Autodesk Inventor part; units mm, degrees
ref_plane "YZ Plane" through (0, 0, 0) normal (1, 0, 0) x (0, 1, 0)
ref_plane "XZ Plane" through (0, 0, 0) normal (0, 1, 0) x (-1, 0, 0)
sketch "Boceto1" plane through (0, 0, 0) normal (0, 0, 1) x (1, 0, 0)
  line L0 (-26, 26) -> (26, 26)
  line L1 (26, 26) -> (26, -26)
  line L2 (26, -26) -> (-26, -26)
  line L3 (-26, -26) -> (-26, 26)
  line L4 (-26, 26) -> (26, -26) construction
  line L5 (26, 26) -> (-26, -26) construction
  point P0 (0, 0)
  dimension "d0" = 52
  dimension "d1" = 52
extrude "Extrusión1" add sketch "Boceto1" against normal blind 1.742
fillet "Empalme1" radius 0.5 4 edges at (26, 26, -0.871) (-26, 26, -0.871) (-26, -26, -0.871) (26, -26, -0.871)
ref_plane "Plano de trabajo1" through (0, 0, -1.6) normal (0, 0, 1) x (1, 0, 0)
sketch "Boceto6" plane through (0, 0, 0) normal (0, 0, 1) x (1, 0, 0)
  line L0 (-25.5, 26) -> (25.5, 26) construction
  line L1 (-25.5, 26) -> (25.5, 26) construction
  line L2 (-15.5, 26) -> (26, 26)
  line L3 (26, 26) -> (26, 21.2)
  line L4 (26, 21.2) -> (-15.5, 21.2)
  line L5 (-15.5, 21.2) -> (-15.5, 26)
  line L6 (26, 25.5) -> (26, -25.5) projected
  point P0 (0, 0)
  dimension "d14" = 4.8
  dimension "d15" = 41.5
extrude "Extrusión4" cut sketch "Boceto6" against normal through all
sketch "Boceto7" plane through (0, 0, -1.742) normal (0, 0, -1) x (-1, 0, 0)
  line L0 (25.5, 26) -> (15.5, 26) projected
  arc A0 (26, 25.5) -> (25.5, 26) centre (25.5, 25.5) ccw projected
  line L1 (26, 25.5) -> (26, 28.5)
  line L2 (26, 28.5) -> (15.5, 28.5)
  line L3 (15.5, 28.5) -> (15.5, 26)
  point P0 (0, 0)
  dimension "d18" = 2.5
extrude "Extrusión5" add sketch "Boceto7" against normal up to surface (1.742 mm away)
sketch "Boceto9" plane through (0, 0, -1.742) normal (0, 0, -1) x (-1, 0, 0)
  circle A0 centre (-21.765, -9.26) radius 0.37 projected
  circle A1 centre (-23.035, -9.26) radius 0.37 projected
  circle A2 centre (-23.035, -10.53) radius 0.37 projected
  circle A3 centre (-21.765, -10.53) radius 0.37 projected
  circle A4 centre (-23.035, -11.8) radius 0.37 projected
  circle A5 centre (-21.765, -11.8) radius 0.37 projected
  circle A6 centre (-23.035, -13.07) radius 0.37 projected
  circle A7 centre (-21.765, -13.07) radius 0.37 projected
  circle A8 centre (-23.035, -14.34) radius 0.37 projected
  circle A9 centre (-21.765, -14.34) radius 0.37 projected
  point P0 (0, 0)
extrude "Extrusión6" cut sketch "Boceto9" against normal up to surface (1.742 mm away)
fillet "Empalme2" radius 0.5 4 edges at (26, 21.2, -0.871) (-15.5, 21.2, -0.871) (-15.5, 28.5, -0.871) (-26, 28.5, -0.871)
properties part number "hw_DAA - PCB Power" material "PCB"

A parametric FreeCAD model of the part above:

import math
import FreeCAD as App
import Part
import Sketcher

V = App.Vector


def edges_at(feature, points):
    """Names of the edges that pass closest to the given points."""
    edges = feature.Shape.Edges
    near = lambda p: min(range(len(edges)), key=lambda i: edges[i].distToShape(Part.Vertex(*p))[0])
    return sorted({f"Edge{near(p) + 1}" for p in points})


def add_polygon(sketch, points):
    """Adds a closed chain of lines whose ends are joined by coincident constraints."""
    first, n = sketch.GeometryCount, len(points)
    for a, b in zip(points, points[1:] + points[:1]):
        sketch.addGeometry(Part.LineSegment(App.Vector(*a, 0), App.Vector(*b, 0)), False)
    for i in range(n):
        sketch.addConstraint(Sketcher.Constraint("Coincident", first + i, 2, first + (i + 1) % n, 1))

doc = App.newDocument("Part")
params = doc.addObject("Spreadsheet::Sheet", "Params")
for row, (alias, value) in enumerate([
    ("sketch1_width", "52 mm"),
    ("pad1_length", "1.742 mm"),
    ("fillet_radius", "0.5 mm"),
    ("sketch2_width", "41.5 mm"),
    ("sketch2_height", "4.8 mm"),
    ("sketch3_height", "2.5 mm"),
    ("sketch3_radius", "0.5 mm"),
    ("sketch3_width", "10 mm"),
    ("pad2_length", "1.742 mm"),
    ("sketch4_diameter", "0.74 mm"),
    ("pocket2_length", "1.742 mm"),
    ("fillet2_radius", "0.5 mm"),
], start=1):
    params.set(f"A{row}", alias)
    params.set(f"B{row}", "=" + value)
    params.setAlias(f"B{row}", alias)

body = doc.addObject("PartDesign::Body", "Body")

# Sketch on XY plane
sketch1 = body.newObject("Sketcher::SketchObject", "Sketch")
sketch1.AttachmentSupport = (doc.getObject("XY_Plane"), [""])
sketch1.MapMode = "FlatFace"
add_polygon(sketch1, [(26, 26), (-26, 26), (-26, -26), (26, -26)])  # lines 0-3
sketch1.addConstraint([
    Sketcher.Constraint("Horizontal", 0),
    Sketcher.Constraint("Vertical", 1),
    Sketcher.Constraint("Horizontal", 2),
    Sketcher.Constraint("Vertical", 3),
    Sketcher.Constraint("Symmetric", 0, 2, 2, 2, -1, 1),
    Sketcher.Constraint("Equal", 2, 1),
    Sketcher.Constraint("DistanceX", 0, 2, 0, 1, 52.0),
])
sketch1.setExpression("Constraints[10]", "Params.sketch1_width")
pad1 = body.newObject("PartDesign::Pad", "Pad")
pad1.Profile = sketch1
pad1.setExpression("Length", "Params.pad1_length")
pad1.Reversed = True
doc.recompute()

fillet = body.newObject("PartDesign::Fillet", "Fillet")
fillet.Base = (pad1, edges_at(pad1, [
    (26, 26, -0.871),
    (-26, 26, -0.871),
    (-26, -26, -0.871),
    (26, -26, -0.871),
]))
fillet.setExpression("Radius", "Params.fillet_radius")

# Sketch on XY plane
sketch2 = body.newObject("Sketcher::SketchObject", "Sketch001")
sketch2.AttachmentSupport = (doc.getObject("XY_Plane"), [""])
sketch2.MapMode = "FlatFace"
add_polygon(sketch2, [(26, 26), (-15.5, 26), (-15.5, 21.2), (26, 21.2)])  # lines 0-3
sketch2.addConstraint([
    Sketcher.Constraint("Horizontal", 0),
    Sketcher.Constraint("Vertical", 1),
    Sketcher.Constraint("Horizontal", 2),
    Sketcher.Constraint("Vertical", 3),
    Sketcher.Constraint("DistanceX", 0, 2, 0, 1, 41.5),
    Sketcher.Constraint("DistanceY", 1, 2, 1, 1, 4.8),
    Sketcher.Constraint("DistanceY", -1, 1, 0, 2, 26.0),
    Sketcher.Constraint("DistanceX", -1, 1, 2, 2, 26.0),
])
sketch2.setExpression("Constraints[8]", "Params.sketch2_width")
sketch2.setExpression("Constraints[9]", "Params.sketch2_height")
pocket1 = body.newObject("PartDesign::Pocket", "Pocket")
pocket1.Profile = sketch2
pocket1.Type = "ThroughAll"

# Sketch on XY plane
sketch3 = body.newObject("Sketcher::SketchObject", "Sketch002")
sketch3.AttachmentSupport = (doc.getObject("XY_Plane"), [""])
sketch3.MapMode = "FlatFace"
sketch3.AttachmentOffset = App.Placement(V(0, 0, -1.742), App.Rotation())
sketch3.addGeometry([
    Part.LineSegment(V(-15.5, 26, 0), V(-25.5, 26, 0)),  # 0
    Part.ArcOfCircle(Part.Circle(V(-25.5, 25.5, 0), V(0, 0, 1), 0.5), math.radians(90), math.radians(180)),  # 1
    Part.LineSegment(V(-26, 25.5, 0), V(-26, 28.5, 0)),  # 2
    Part.LineSegment(V(-26, 28.5, 0), V(-15.5, 28.5, 0)),  # 3
    Part.LineSegment(V(-15.5, 28.5, 0), V(-15.5, 26, 0)),  # 4
], False)
sketch3.addConstraint([
    Sketcher.Constraint("Tangent", 0, 2, 1, 1),
    Sketcher.Constraint("Tangent", 1, 2, 2, 1),
    Sketcher.Constraint("Coincident", 2, 2, 3, 1),
    Sketcher.Constraint("Coincident", 3, 2, 4, 1),
    Sketcher.Constraint("Coincident", 4, 2, 0, 1),
    Sketcher.Constraint("Horizontal", 0),
    Sketcher.Constraint("Vertical", 2),
    Sketcher.Constraint("Horizontal", 3),
    Sketcher.Constraint("Vertical", 4),
    Sketcher.Constraint("DistanceY", 4, 2, 4, 1, 2.5),
    Sketcher.Constraint("Radius", 1, 0.5),
    Sketcher.Constraint("DistanceX", 0, 2, 0, 1, 10.0),
    Sketcher.Constraint("DistanceY", -1, 1, 0, 2, 26.0),
    Sketcher.Constraint("DistanceX", 1, 2, -1, 1, 26.0),
])
sketch3.setExpression("Constraints[9]", "Params.sketch3_height")
sketch3.setExpression("Constraints[10]", "Params.sketch3_radius")
sketch3.setExpression("Constraints[11]", "Params.sketch3_width")
pad2 = body.newObject("PartDesign::Pad", "Pad001")
pad2.Profile = sketch3
pad2.setExpression("Length", "Params.pad2_length")

# Sketch on XY plane
sketch4 = body.newObject("Sketcher::SketchObject", "Sketch003")
sketch4.AttachmentSupport = (doc.getObject("XY_Plane"), [""])
sketch4.MapMode = "FlatFace"
sketch4.AttachmentOffset = App.Placement(V(0, 0, -1.742), App.Rotation())
sketch4.addGeometry([
    Part.Circle(V(21.77, -9.26, 0), V(0, 0, 1), 0.37),  # 0
    Part.Circle(V(23.04, -9.26, 0), V(0, 0, 1), 0.37),  # 1
    Part.Circle(V(23.04, -10.53, 0), V(0, 0, 1), 0.37),  # 2
    Part.Circle(V(21.77, -10.53, 0), V(0, 0, 1), 0.37),  # 3
    Part.Circle(V(23.04, -11.8, 0), V(0, 0, 1), 0.37),  # 4
    Part.Circle(V(21.77, -11.8, 0), V(0, 0, 1), 0.37),  # 5
    Part.Circle(V(23.04, -13.07, 0), V(0, 0, 1), 0.37),  # 6
    Part.Circle(V(21.77, -13.07, 0), V(0, 0, 1), 0.37),  # 7
    Part.Circle(V(23.04, -14.34, 0), V(0, 0, 1), 0.37),  # 8
    Part.Circle(V(21.77, -14.34, 0), V(0, 0, 1), 0.37),  # 9
], False)
sketch4.addConstraint([
    Sketcher.Constraint("Equal", 0, 1),
    Sketcher.Constraint("Equal", 1, 2),
    Sketcher.Constraint("Equal", 2, 3),
    Sketcher.Constraint("Equal", 3, 4),
    Sketcher.Constraint("Equal", 4, 5),
    Sketcher.Constraint("Equal", 5, 6),
    Sketcher.Constraint("Equal", 6, 7),
    Sketcher.Constraint("Equal", 7, 8),
    Sketcher.Constraint("Equal", 8, 9),
    Sketcher.Constraint("Horizontal", 0, 3, 1, 3),
    Sketcher.Constraint("Horizontal", 2, 3, 3, 3),
    Sketcher.Constraint("Horizontal", 4, 3, 5, 3),
    Sketcher.Constraint("Horizontal", 6, 3, 7, 3),
    Sketcher.Constraint("Horizontal", 8, 3, 9, 3),
    Sketcher.Constraint("Vertical", 1, 3, 2, 3),
    Sketcher.Constraint("Vertical", 0, 3, 3, 3),
    Sketcher.Constraint("Vertical", 2, 3, 4, 3),
    Sketcher.Constraint("Vertical", 3, 3, 5, 3),
    Sketcher.Constraint("Vertical", 4, 3, 6, 3),
    Sketcher.Constraint("Vertical", 5, 3, 7, 3),
    Sketcher.Constraint("Vertical", 6, 3, 8, 3),
    Sketcher.Constraint("Vertical", 7, 3, 9, 3),
    Sketcher.Constraint("Diameter", 0, 0.74),
    Sketcher.Constraint("DistanceY", 4, 3, -1, 1, 11.8),
    Sketcher.Constraint("DistanceY", 0, 3, -1, 1, 9.26),
    Sketcher.Constraint("DistanceY", 2, 3, -1, 1, 10.53),
    Sketcher.Constraint("DistanceY", 6, 3, -1, 1, 13.07),
    Sketcher.Constraint("DistanceY", 8, 3, -1, 1, 14.34),
    Sketcher.Constraint("DistanceX", 0, 3, 1, 3, 1.27),
    Sketcher.Constraint("DistanceX", -1, 1, 0, 3, 21.765),
])
sketch4.setExpression("Constraints[22]", "Params.sketch4_diameter")
pocket2 = body.newObject("PartDesign::Pocket", "Pocket001")
pocket2.Profile = sketch4
pocket2.setExpression("Length", "Params.pocket2_length")
pocket2.Reversed = True
doc.recompute()

fillet2 = body.newObject("PartDesign::Fillet", "Fillet001")
fillet2.Base = (pocket2, edges_at(pocket2, [
    (26, 21.2, -0.871),
    (-15.5, 21.2, -0.871),
    (-15.5, 28.5, -0.871),
    (-26, 28.5, -0.871),
]))
fillet2.setExpression("Radius", "Params.fillet2_radius")

doc.recompute()
